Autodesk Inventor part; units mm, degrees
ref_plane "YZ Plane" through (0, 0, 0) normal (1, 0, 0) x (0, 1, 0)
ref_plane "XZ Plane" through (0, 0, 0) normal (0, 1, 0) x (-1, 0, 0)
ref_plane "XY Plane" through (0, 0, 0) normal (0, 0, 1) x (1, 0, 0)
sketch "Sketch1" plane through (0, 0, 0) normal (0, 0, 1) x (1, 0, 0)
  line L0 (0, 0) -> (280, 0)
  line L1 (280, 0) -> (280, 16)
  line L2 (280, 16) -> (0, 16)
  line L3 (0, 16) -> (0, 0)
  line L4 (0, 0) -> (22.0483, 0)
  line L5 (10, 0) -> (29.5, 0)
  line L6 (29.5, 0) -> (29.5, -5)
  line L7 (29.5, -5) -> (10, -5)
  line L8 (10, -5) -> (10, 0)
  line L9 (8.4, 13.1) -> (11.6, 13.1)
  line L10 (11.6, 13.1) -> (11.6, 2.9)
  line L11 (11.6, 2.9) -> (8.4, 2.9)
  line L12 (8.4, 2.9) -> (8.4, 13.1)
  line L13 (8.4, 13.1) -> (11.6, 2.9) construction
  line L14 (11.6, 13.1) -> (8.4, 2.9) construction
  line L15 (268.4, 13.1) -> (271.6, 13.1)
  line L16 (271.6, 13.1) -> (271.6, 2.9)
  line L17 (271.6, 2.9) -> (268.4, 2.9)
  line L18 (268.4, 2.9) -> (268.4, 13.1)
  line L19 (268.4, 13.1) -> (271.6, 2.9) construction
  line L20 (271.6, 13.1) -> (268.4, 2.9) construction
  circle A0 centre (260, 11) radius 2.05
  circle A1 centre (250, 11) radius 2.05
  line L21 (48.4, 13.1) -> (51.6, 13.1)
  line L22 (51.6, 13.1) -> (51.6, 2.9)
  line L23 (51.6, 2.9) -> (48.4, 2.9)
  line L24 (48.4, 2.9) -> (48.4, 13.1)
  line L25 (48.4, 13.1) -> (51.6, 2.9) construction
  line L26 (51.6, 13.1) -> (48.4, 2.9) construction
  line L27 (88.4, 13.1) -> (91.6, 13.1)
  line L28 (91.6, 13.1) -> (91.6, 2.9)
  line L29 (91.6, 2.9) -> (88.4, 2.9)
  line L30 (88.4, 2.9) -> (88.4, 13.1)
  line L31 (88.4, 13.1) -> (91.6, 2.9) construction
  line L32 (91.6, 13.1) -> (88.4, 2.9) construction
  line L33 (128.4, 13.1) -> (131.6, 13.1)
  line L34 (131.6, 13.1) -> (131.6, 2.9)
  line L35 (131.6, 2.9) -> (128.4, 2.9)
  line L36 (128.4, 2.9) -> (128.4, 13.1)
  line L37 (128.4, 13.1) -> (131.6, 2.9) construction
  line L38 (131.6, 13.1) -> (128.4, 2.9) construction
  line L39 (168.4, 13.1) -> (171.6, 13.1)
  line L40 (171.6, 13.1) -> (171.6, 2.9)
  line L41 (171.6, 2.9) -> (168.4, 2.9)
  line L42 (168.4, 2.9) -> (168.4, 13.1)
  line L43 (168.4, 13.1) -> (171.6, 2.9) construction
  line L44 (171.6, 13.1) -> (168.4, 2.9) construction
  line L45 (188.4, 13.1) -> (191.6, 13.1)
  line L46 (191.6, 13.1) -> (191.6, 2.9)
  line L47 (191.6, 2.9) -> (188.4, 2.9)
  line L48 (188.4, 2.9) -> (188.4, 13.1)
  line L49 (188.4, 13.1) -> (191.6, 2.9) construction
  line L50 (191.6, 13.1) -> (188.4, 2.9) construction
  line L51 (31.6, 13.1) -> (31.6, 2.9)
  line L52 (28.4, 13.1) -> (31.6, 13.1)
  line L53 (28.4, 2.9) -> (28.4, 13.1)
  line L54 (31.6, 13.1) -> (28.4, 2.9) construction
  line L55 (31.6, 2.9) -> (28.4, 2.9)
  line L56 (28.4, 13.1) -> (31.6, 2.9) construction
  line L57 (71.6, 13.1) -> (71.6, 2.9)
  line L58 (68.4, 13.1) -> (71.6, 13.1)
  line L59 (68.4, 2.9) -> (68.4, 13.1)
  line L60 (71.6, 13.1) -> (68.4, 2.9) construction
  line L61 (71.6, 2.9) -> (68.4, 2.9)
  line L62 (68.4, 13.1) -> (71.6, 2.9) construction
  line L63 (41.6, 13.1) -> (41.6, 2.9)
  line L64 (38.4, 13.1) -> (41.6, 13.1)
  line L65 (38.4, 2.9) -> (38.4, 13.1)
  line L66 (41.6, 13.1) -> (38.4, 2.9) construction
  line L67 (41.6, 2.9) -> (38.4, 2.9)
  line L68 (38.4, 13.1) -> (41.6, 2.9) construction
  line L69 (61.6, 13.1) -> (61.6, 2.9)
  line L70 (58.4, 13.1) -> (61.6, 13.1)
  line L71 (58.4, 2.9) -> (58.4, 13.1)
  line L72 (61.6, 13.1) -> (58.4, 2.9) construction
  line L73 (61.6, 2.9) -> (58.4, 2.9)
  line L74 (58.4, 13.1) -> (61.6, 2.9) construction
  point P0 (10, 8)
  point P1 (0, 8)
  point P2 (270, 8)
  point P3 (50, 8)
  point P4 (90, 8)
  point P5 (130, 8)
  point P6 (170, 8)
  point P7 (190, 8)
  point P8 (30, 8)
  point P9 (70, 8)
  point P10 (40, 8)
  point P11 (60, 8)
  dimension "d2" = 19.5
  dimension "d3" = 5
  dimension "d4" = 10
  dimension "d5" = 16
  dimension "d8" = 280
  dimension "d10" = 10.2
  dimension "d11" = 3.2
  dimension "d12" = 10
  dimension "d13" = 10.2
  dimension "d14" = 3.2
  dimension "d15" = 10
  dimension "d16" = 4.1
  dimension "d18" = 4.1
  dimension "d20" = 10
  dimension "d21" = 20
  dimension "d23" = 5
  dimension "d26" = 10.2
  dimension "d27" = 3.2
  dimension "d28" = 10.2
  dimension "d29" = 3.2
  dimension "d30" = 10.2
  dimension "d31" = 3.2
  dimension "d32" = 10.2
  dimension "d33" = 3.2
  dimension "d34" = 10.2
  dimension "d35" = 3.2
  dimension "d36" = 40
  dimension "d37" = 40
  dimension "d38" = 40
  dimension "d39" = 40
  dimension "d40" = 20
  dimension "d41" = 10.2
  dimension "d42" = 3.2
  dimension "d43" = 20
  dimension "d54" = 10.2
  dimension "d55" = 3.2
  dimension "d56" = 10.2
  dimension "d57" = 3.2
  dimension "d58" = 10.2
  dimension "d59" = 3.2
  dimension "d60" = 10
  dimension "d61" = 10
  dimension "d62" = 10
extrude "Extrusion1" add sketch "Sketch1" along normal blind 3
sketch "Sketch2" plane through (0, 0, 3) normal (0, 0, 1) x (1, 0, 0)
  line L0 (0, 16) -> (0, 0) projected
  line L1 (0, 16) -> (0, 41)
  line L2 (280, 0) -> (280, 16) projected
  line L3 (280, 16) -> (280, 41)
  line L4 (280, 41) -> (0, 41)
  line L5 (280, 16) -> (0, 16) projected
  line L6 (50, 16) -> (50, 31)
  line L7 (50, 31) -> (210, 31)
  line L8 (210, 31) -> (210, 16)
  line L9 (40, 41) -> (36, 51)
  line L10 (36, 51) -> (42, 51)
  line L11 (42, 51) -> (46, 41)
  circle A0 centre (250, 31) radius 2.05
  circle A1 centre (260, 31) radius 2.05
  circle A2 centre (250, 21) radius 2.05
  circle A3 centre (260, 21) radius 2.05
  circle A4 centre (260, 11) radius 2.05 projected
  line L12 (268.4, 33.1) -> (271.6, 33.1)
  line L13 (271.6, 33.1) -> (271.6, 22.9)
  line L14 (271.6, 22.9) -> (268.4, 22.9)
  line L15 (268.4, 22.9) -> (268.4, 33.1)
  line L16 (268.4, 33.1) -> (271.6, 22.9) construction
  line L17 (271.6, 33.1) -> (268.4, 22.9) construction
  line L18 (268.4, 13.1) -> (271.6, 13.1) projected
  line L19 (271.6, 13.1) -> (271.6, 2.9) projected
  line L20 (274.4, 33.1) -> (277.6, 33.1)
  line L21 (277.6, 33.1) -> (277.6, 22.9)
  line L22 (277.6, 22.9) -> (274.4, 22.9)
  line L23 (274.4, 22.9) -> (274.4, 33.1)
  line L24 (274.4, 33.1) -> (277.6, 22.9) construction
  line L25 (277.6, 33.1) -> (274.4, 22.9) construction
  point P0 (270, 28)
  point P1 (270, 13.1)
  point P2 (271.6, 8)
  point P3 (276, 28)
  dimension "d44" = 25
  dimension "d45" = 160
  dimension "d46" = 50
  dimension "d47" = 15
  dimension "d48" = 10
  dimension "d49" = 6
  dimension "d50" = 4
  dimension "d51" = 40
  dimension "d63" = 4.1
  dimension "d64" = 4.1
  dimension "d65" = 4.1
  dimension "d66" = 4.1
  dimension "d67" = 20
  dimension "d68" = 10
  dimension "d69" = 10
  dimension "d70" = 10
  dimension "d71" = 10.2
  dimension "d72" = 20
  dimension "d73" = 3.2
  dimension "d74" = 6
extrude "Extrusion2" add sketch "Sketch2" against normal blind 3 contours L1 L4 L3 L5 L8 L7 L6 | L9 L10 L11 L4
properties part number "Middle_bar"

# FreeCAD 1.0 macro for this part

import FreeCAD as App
import Part
import Sketcher

V = App.Vector

doc = App.newDocument("Part")
body = doc.addObject("PartDesign::Body", "Body")

# Sketch on XY plane
sketch1 = body.newObject("Sketcher::SketchObject", "Sketch")
sketch1.AttachmentSupport = (doc.getObject("XY_Plane"), [""])
sketch1.MapMode = "FlatFace"
sketch1.addGeometry([
    Part.LineSegment(V(0, 16, 0), V(0, 0, 0)),  # 0
    Part.LineSegment(V(0, 0, 0), V(10, 0, 0)),  # 1
    Part.LineSegment(V(10, 0, 0), V(10, -5, 0)),  # 2
    Part.LineSegment(V(10, -5, 0), V(29.5, -5, 0)),  # 3
    Part.LineSegment(V(29.5, -5, 0), V(29.5, 0, 0)),  # 4
    Part.LineSegment(V(29.5, 0, 0), V(280, 0, 0)),  # 5
    Part.LineSegment(V(280, 0, 0), V(280, 16, 0)),  # 6
    Part.LineSegment(V(280, 16, 0), V(0, 16, 0)),  # 7
    Part.LineSegment(V(8.4, 2.9, 0), V(8.4, 13.1, 0)),  # 8
    Part.LineSegment(V(8.4, 13.1, 0), V(11.6, 13.1, 0)),  # 9
    Part.LineSegment(V(11.6, 13.1, 0), V(11.6, 2.9, 0)),  # 10
    Part.LineSegment(V(11.6, 2.9, 0), V(8.4, 2.9, 0)),  # 11
    Part.LineSegment(V(28.4, 13.1, 0), V(31.6, 13.1, 0)),  # 12
    Part.LineSegment(V(31.6, 13.1, 0), V(31.6, 2.9, 0)),  # 13
    Part.LineSegment(V(31.6, 2.9, 0), V(28.4, 2.9, 0)),  # 14
    Part.LineSegment(V(28.4, 2.9, 0), V(28.4, 13.1, 0)),  # 15
    Part.LineSegment(V(38.4, 13.1, 0), V(41.6, 13.1, 0)),  # 16
    Part.LineSegment(V(41.6, 13.1, 0), V(41.6, 2.9, 0)),  # 17
    Part.LineSegment(V(41.6, 2.9, 0), V(38.4, 2.9, 0)),  # 18
    Part.LineSegment(V(38.4, 2.9, 0), V(38.4, 13.1, 0)),  # 19
    Part.LineSegment(V(48.4, 2.9, 0), V(48.4, 13.1, 0)),  # 20
    Part.LineSegment(V(48.4, 13.1, 0), V(51.6, 13.1, 0)),  # 21
    Part.LineSegment(V(51.6, 13.1, 0), V(51.6, 2.9, 0)),  # 22
    Part.LineSegment(V(51.6, 2.9, 0), V(48.4, 2.9, 0)),  # 23
    Part.LineSegment(V(58.4, 13.1, 0), V(61.6, 13.1, 0)),  # 24
    Part.LineSegment(V(61.6, 13.1, 0), V(61.6, 2.9, 0)),  # 25
    Part.LineSegment(V(61.6, 2.9, 0), V(58.4, 2.9, 0)),  # 26
    Part.LineSegment(V(58.4, 2.9, 0), V(58.4, 13.1, 0)),  # 27
    Part.LineSegment(V(68.4, 13.1, 0), V(71.6, 13.1, 0)),  # 28
    Part.LineSegment(V(71.6, 13.1, 0), V(71.6, 2.9, 0)),  # 29
    Part.LineSegment(V(71.6, 2.9, 0), V(68.4, 2.9, 0)),  # 30
    Part.LineSegment(V(68.4, 2.9, 0), V(68.4, 13.1, 0)),  # 31
    Part.LineSegment(V(88.4, 2.9, 0), V(88.4, 13.1, 0)),  # 32
    Part.LineSegment(V(88.4, 13.1, 0), V(91.6, 13.1, 0)),  # 33
    Part.LineSegment(V(91.6, 13.1, 0), V(91.6, 2.9, 0)),  # 34
    Part.LineSegment(V(91.6, 2.9, 0), V(88.4, 2.9, 0)),  # 35
    Part.LineSegment(V(128.4, 2.9, 0), V(128.4, 13.1, 0)),  # 36
    Part.LineSegment(V(128.4, 13.1, 0), V(131.6, 13.1, 0)),  # 37
    Part.LineSegment(V(131.6, 13.1, 0), V(131.6, 2.9, 0)),  # 38
    Part.LineSegment(V(131.6, 2.9, 0), V(128.4, 2.9, 0)),  # 39
    Part.LineSegment(V(168.4, 2.9, 0), V(168.4, 13.1, 0)),  # 40
    Part.LineSegment(V(168.4, 13.1, 0), V(171.6, 13.1, 0)),  # 41
    Part.LineSegment(V(171.6, 13.1, 0), V(171.6, 2.9, 0)),  # 42
    Part.LineSegment(V(171.6, 2.9, 0), V(168.4, 2.9, 0)),  # 43
    Part.LineSegment(V(188.4, 2.9, 0), V(188.4, 13.1, 0)),  # 44
    Part.LineSegment(V(188.4, 13.1, 0), V(191.6, 13.1, 0)),  # 45
    Part.LineSegment(V(191.6, 13.1, 0), V(191.6, 2.9, 0)),  # 46
    Part.LineSegment(V(191.6, 2.9, 0), V(188.4, 2.9, 0)),  # 47
    Part.LineSegment(V(268.4, 2.9, 0), V(268.4, 13.1, 0)),  # 48
    Part.LineSegment(V(268.4, 13.1, 0), V(271.6, 13.1, 0)),  # 49
    Part.LineSegment(V(271.6, 13.1, 0), V(271.6, 2.9, 0)),  # 50
    Part.LineSegment(V(271.6, 2.9, 0), V(268.4, 2.9, 0)),  # 51
    Part.Circle(V(250, 11, 0), V(0, 0, 1), 2),  # 52
    Part.Circle(V(260, 11, 0), V(0, 0, 1), 2),  # 53
], False)
sketch1.addConstraint([
    Sketcher.Constraint("Coincident", 0, 2, 1, 1),
    Sketcher.Constraint("Coincident", 1, 2, 2, 1),
    Sketcher.Constraint("Coincident", 2, 2, 3, 1),
    Sketcher.Constraint("Coincident", 3, 2, 4, 1),
    Sketcher.Constraint("Coincident", 4, 2, 5, 1),
    Sketcher.Constraint("Coincident", 5, 2, 6, 1),
    Sketcher.Constraint("Coincident", 6, 2, 7, 1),
    Sketcher.Constraint("Coincident", 7, 2, 0, 1),
    Sketcher.Constraint("Coincident", 8, 2, 9, 1),
    Sketcher.Constraint("Coincident", 9, 2, 10, 1),
    Sketcher.Constraint("Coincident", 10, 2, 11, 1),
    Sketcher.Constraint("Coincident", 11, 2, 8, 1),
    Sketcher.Constraint("Coincident", 12, 2, 13, 1),
    Sketcher.Constraint("Coincident", 13, 2, 14, 1),
    Sketcher.Constraint("Coincident", 14, 2, 15, 1),
    Sketcher.Constraint("Coincident", 15, 2, 12, 1),
    Sketcher.Constraint("Coincident", 16, 2, 17, 1),
    Sketcher.Constraint("Coincident", 17, 2, 18, 1),
    Sketcher.Constraint("Coincident", 18, 2, 19, 1),
    Sketcher.Constraint("Coincident", 19, 2, 16, 1),
    Sketcher.Constraint("Coincident", 20, 2, 21, 1),
    Sketcher.Constraint("Coincident", 21, 2, 22, 1),
    Sketcher.Constraint("Coincident", 22, 2, 23, 1),
    Sketcher.Constraint("Coincident", 23, 2, 20, 1),
    Sketcher.Constraint("Coincident", 24, 2, 25, 1),
    Sketcher.Constraint("Coincident", 25, 2, 26, 1),
    Sketcher.Constraint("Coincident", 26, 2, 27, 1),
    Sketcher.Constraint("Coincident", 27, 2, 24, 1),
    Sketcher.Constraint("Coincident", 28, 2, 29, 1),
    Sketcher.Constraint("Coincident", 29, 2, 30, 1),
    Sketcher.Constraint("Coincident", 30, 2, 31, 1),
    Sketcher.Constraint("Coincident", 31, 2, 28, 1),
    Sketcher.Constraint("Coincident", 32, 2, 33, 1),
    Sketcher.Constraint("Coincident", 33, 2, 34, 1),
    Sketcher.Constraint("Coincident", 34, 2, 35, 1),
    Sketcher.Constraint("Coincident", 35, 2, 32, 1),
    Sketcher.Constraint("Coincident", 36, 2, 37, 1),
    Sketcher.Constraint("Coincident", 37, 2, 38, 1),
    Sketcher.Constraint("Coincident", 38, 2, 39, 1),
    Sketcher.Constraint("Coincident", 39, 2, 36, 1),
    Sketcher.Constraint("Coincident", 40, 2, 41, 1),
    Sketcher.Constraint("Coincident", 41, 2, 42, 1),
    Sketcher.Constraint("Coincident", 42, 2, 43, 1),
    Sketcher.Constraint("Coincident", 43, 2, 40, 1),
    Sketcher.Constraint("Coincident", 44, 2, 45, 1),
    Sketcher.Constraint("Coincident", 45, 2, 46, 1),
    Sketcher.Constraint("Coincident", 46, 2, 47, 1),
    Sketcher.Constraint("Coincident", 47, 2, 44, 1),
    Sketcher.Constraint("Coincident", 48, 2, 49, 1),
    Sketcher.Constraint("Coincident", 49, 2, 50, 1),
    Sketcher.Constraint("Coincident", 50, 2, 51, 1),
    Sketcher.Constraint("Coincident", 51, 2, 48, 1),
    Sketcher.Constraint("Vertical", 0),
    Sketcher.Constraint("Horizontal", 1),
    Sketcher.Constraint("Vertical", 2),
    Sketcher.Constraint("Horizontal", 3),
    Sketcher.Constraint("Vertical", 4),
    Sketcher.Constraint("Horizontal", 5),
    Sketcher.Constraint("Vertical", 6),
    Sketcher.Constraint("Horizontal", 7),
    Sketcher.Constraint("Vertical", 8),
    Sketcher.Constraint("Horizontal", 9),
    Sketcher.Constraint("Vertical", 10),
    Sketcher.Constraint("Horizontal", 11),
    Sketcher.Constraint("Horizontal", 12),
    Sketcher.Constraint("Vertical", 13),
    Sketcher.Constraint("Horizontal", 14),
    Sketcher.Constraint("Vertical", 15),
    Sketcher.Constraint("Horizontal", 16),
    Sketcher.Constraint("Vertical", 17),
    Sketcher.Constraint("Horizontal", 18),
    Sketcher.Constraint("Vertical", 19),
    Sketcher.Constraint("Vertical", 20),
    Sketcher.Constraint("Horizontal", 21),
    Sketcher.Constraint("Vertical", 22),
    Sketcher.Constraint("Horizontal", 23),
    Sketcher.Constraint("Horizontal", 24),
    Sketcher.Constraint("Vertical", 25),
    Sketcher.Constraint("Horizontal", 26),
    Sketcher.Constraint("Vertical", 27),
    Sketcher.Constraint("Horizontal", 28),
    Sketcher.Constraint("Vertical", 29),
    Sketcher.Constraint("Horizontal", 30),
    Sketcher.Constraint("Vertical", 31),
    Sketcher.Constraint("Vertical", 32),
    Sketcher.Constraint("Horizontal", 33),
    Sketcher.Constraint("Vertical", 34),
    Sketcher.Constraint("Horizontal", 35),
    Sketcher.Constraint("Vertical", 36),
    Sketcher.Constraint("Horizontal", 37),
    Sketcher.Constraint("Vertical", 38),
    Sketcher.Constraint("Horizontal", 39),
    Sketcher.Constraint("Vertical", 40),
    Sketcher.Constraint("Horizontal", 41),
    Sketcher.Constraint("Vertical", 42),
    Sketcher.Constraint("Horizontal", 43),
    Sketcher.Constraint("Vertical", 44),
    Sketcher.Constraint("Horizontal", 45),
    Sketcher.Constraint("Vertical", 46),
    Sketcher.Constraint("Horizontal", 47),
    Sketcher.Constraint("Vertical", 48),
    Sketcher.Constraint("Horizontal", 49),
    Sketcher.Constraint("Vertical", 50),
    Sketcher.Constraint("Horizontal", 51),
    Sketcher.Constraint("Coincident", 0, 2, -1, 1),
    Sketcher.Constraint("Equal", 52, 53),
    Sketcher.Constraint("PointOnObject", 4, 2, -1),
    Sketcher.Constraint("Horizontal", 52, 3, 53, 3),
    Sketcher.Constraint("Horizontal", 9, 2, 12, 2),
    Sketcher.Constraint("Horizontal", 11, 2, 13, 2),
    Sketcher.Constraint("Horizontal", 15, 2, 16, 2),
    Sketcher.Constraint("Horizontal", 14, 2, 17, 2),
    Sketcher.Constraint("Horizontal", 19, 2, 20, 2),
    Sketcher.Constraint("Horizontal", 18, 2, 22, 2),
    Sketcher.Constraint("Horizontal", 21, 2, 24, 2),
    Sketcher.Constraint("Horizontal", 23, 2, 25, 2),
    Sketcher.Constraint("Horizontal", 27, 2, 28, 2),
    Sketcher.Constraint("Horizontal", 26, 2, 29, 2),
    Sketcher.Constraint("Horizontal", 31, 2, 32, 2),
    Sketcher.Constraint("Horizontal", 30, 2, 34, 2),
    Sketcher.Constraint("Horizontal", 33, 2, 36, 2),
    Sketcher.Constraint("Horizontal", 35, 2, 38, 2),
    Sketcher.Constraint("Horizontal", 37, 2, 40, 2),
    Sketcher.Constraint("Horizontal", 39, 2, 42, 2),
    Sketcher.Constraint("Horizontal", 41, 2, 44, 2),
    Sketcher.Constraint("Horizontal", 43, 2, 46, 2),
    Sketcher.Constraint("Horizontal", 45, 2, 48, 2),
    Sketcher.Constraint("Horizontal", 47, 2, 50, 2),
    Sketcher.Constraint("Equal", 11, 12),
    Sketcher.Constraint("Equal", 14, 16),
    Sketcher.Constraint("Equal", 18, 21),
    Sketcher.Constraint("Equal", 23, 24),
    Sketcher.Constraint("Equal", 26, 28),
    Sketcher.Constraint("Equal", 30, 33),
    Sketcher.Constraint("Equal", 35, 37),
    Sketcher.Constraint("Equal", 39, 41),
    Sketcher.Constraint("Equal", 43, 45),
    Sketcher.Constraint("Equal", 47, 49),
    Sketcher.Constraint("Diameter", 52, 4.1),
    Sketcher.Constraint("DistanceX", 1, 1, 1, 2, 10.0),
    Sketcher.Constraint("DistanceX", 7, 2, 7, 1, 280.0),
    Sketcher.Constraint("DistanceY", 0, 2, 0, 1, 16.0),
    Sketcher.Constraint("DistanceY", 2, 2, 2, 1, 5.0),
    Sketcher.Constraint("DistanceX", 3, 1, 3, 2, 19.5),
    Sketcher.Constraint("DistanceX", 9, 1, 9, 2, 3.2),
    Sketcher.Constraint("DistanceY", 8, 1, 8, 2, 10.2),
    Sketcher.Constraint("DistanceX", 52, 3, 53, 3, 10.0),
    Sketcher.Constraint("DistanceY", 2, 2, 52, 3, 16.0),
    Sketcher.Constraint("DistanceX", 53, 3, 5, 2, 20.0),
    Sketcher.Constraint("DistanceX", 9, 2, 12, 2, 20.0),
    Sketcher.Constraint("DistanceX", 12, 2, 16, 2, 10.0),
    Sketcher.Constraint("DistanceX", 19, 2, 20, 2, 10.0),
    Sketcher.Constraint("DistanceX", 21, 2, 24, 2, 10.0),
    Sketcher.Constraint("DistanceX", 24, 2, 28, 2, 10.0),
    Sketcher.Constraint("DistanceX", 31, 2, 32, 2, 20.0),
    Sketcher.Constraint("DistanceX", 32, 2, 36, 2, 40.0),
    Sketcher.Constraint("DistanceX", 36, 2, 40, 2, 40.0),
    Sketcher.Constraint("DistanceX", 40, 2, 44, 2, 20.0),
    Sketcher.Constraint("DistanceX", -1, 1, 8, 2, 8.4),
    Sketcher.Constraint("DistanceY", -1, 1, 8, 2, 13.1),
    Sketcher.Constraint("DistanceX", -1, 1, 48, 2, 268.4),
])
pad1 = body.newObject("PartDesign::Pad", "Pad")
pad1.Profile = sketch1
pad1.Length = 3

# Sketch on XY plane
sketch2 = body.newObject("Sketcher::SketchObject", "Sketch001")
sketch2.AttachmentSupport = (doc.getObject("XY_Plane"), [""])
sketch2.MapMode = "FlatFace"
sketch2.AttachmentOffset = App.Placement(V(0, 0, 3), App.Rotation())
sketch2.addGeometry([
    Part.LineSegment(V(0, 41, 0), V(0, 16, 0)),  # 0
    Part.LineSegment(V(0, 16, 0), V(50, 16, 0)),  # 1
    Part.LineSegment(V(50, 16, 0), V(50, 31, 0)),  # 2
    Part.LineSegment(V(50, 31, 0), V(210, 31, 0)),  # 3
    Part.LineSegment(V(210, 31, 0), V(210, 16, 0)),  # 4
    Part.LineSegment(V(210, 16, 0), V(280, 16, 0)),  # 5
    Part.LineSegment(V(280, 16, 0), V(280, 41, 0)),  # 6
    Part.LineSegment(V(280, 41, 0), V(46, 41, 0)),  # 7
    Part.LineSegment(V(46, 41, 0), V(42, 51, 0)),  # 8
    Part.LineSegment(V(42, 51, 0), V(36, 51, 0)),  # 9
    Part.LineSegment(V(36, 51, 0), V(40, 41, 0)),  # 10
    Part.LineSegment(V(40, 41, 0), V(0, 41, 0)),  # 11
    Part.Circle(V(250, 21, 0), V(0, 0, 1), 2),  # 12
    Part.Circle(V(260, 21, 0), V(0, 0, 1), 2),  # 13
    Part.LineSegment(V(268.4, 22.9, 0), V(268.4, 33.1, 0)),  # 14
    Part.LineSegment(V(268.4, 33.1, 0), V(271.6, 33.1, 0)),  # 15
    Part.LineSegment(V(271.6, 33.1, 0), V(271.6, 22.9, 0)),  # 16
    Part.LineSegment(V(271.6, 22.9, 0), V(268.4, 22.9, 0)),  # 17
    Part.LineSegment(V(274.4, 22.9, 0), V(274.4, 33.1, 0)),  # 18
    Part.LineSegment(V(274.4, 33.1, 0), V(277.6, 33.1, 0)),  # 19
    Part.LineSegment(V(277.6, 33.1, 0), V(277.6, 22.9, 0)),  # 20
    Part.LineSegment(V(277.6, 22.9, 0), V(274.4, 22.9, 0)),  # 21
    Part.Circle(V(250, 31, 0), V(0, 0, 1), 2),  # 22
    Part.Circle(V(260, 31, 0), V(0, 0, 1), 2),  # 23
], False)
sketch2.addConstraint([
    Sketcher.Constraint("Coincident", 0, 2, 1, 1),
    Sketcher.Constraint("Coincident", 1, 2, 2, 1),
    Sketcher.Constraint("Coincident", 2, 2, 3, 1),
    Sketcher.Constraint("Coincident", 3, 2, 4, 1),
    Sketcher.Constraint("Coincident", 4, 2, 5, 1),
    Sketcher.Constraint("Coincident", 5, 2, 6, 1),
    Sketcher.Constraint("Coincident", 6, 2, 7, 1),
    Sketcher.Constraint("Coincident", 7, 2, 8, 1),
    Sketcher.Constraint("Coincident", 8, 2, 9, 1),
    Sketcher.Constraint("Coincident", 9, 2, 10, 1),
    Sketcher.Constraint("Coincident", 10, 2, 11, 1),
    Sketcher.Constraint("Coincident", 11, 2, 0, 1),
    Sketcher.Constraint("Coincident", 14, 2, 15, 1),
    Sketcher.Constraint("Coincident", 15, 2, 16, 1),
    Sketcher.Constraint("Coincident", 16, 2, 17, 1),
    Sketcher.Constraint("Coincident", 17, 2, 14, 1),
    Sketcher.Constraint("Coincident", 18, 2, 19, 1),
    Sketcher.Constraint("Coincident", 19, 2, 20, 1),
    Sketcher.Constraint("Coincident", 20, 2, 21, 1),
    Sketcher.Constraint("Coincident", 21, 2, 18, 1),
    Sketcher.Constraint("Vertical", 0),
    Sketcher.Constraint("Horizontal", 1),
    Sketcher.Constraint("Vertical", 2),
    Sketcher.Constraint("Horizontal", 3),
    Sketcher.Constraint("Vertical", 4),
    Sketcher.Constraint("Horizontal", 5),
    Sketcher.Constraint("Vertical", 6),
    Sketcher.Constraint("Horizontal", 7),
    Sketcher.Constraint("Horizontal", 9),
    Sketcher.Constraint("Horizontal", 11),
    Sketcher.Constraint("Vertical", 14),
    Sketcher.Constraint("Horizontal", 15),
    Sketcher.Constraint("Vertical", 16),
    Sketcher.Constraint("Horizontal", 17),
    Sketcher.Constraint("Vertical", 18),
    Sketcher.Constraint("Horizontal", 19),
    Sketcher.Constraint("Vertical", 20),
    Sketcher.Constraint("Horizontal", 21),
    Sketcher.Constraint("Equal", 12, 13),
    Sketcher.Constraint("Equal", 13, 22),
    Sketcher.Constraint("Equal", 22, 23),
    Sketcher.Constraint("PointOnObject", 0, 2, -2),
    Sketcher.Constraint("Parallel", 8, 10),
    Sketcher.Constraint("Horizontal", 12, 3, 13, 3),
    Sketcher.Constraint("Horizontal", 22, 3, 23, 3),
    Sketcher.Constraint("Horizontal", 23, 3, 2, 2),
    Sketcher.Constraint("Horizontal", 1, 2, 4, 2),
    Sketcher.Constraint("Horizontal", 7, 2, 10, 2),
    Sketcher.Constraint("Horizontal", 15, 2, 18, 2),
    Sketcher.Constraint("Horizontal", 17, 2, 20, 2),
    Sketcher.Constraint("Vertical", 12, 3, 22, 3),
    Sketcher.Constraint("Vertical", 13, 3, 23, 3),
    Sketcher.Constraint("Equal", 17, 19),
    Sketcher.Constraint("Diameter", 12, 4.1),
    Sketcher.Constraint("DistanceX", 1, 1, 1, 2, 50.0),
    Sketcher.Constraint("DistanceX", 3, 1, 3, 2, 160.0),
    Sketcher.Constraint("DistanceX", 9, 2, 9, 1, 6.0),
    Sketcher.Constraint("DistanceX", 11, 2, 11, 1, 40.0),
    Sketcher.Constraint("DistanceY", 0, 2, 0, 1, 25.0),
    Sketcher.Constraint("DistanceY", 2, 1, 2, 2, 15.0),
    Sketcher.Constraint("DistanceX", 15, 1, 15, 2, 3.2),
    Sketcher.Constraint("DistanceY", 14, 1, 14, 2, 10.2),
    Sketcher.Constraint("DistanceX", 12, 3, 13, 3, 10.0),
    Sketcher.Constraint("DistanceY", 12, 3, 22, 3, 10.0),
    Sketcher.Constraint("DistanceX", 3, 2, 22, 3, 40.0),
    Sketcher.Constraint("DistanceX", 13, 3, 5, 2, 20.0),
    Sketcher.Constraint("DistanceX", 8, 2, 7, 2, 4.0),
    Sketcher.Constraint("DistanceY", 7, 2, 8, 2, 10.0),
    Sketcher.Constraint("DistanceX", 14, 2, 18, 2, 6.0),
    Sketcher.Constraint("DistanceY", -1, 1, 12, 3, 21.0),
    Sketcher.Constraint("DistanceX", -1, 1, 14, 2, 268.4),
    Sketcher.Constraint("DistanceY", -1, 1, 14, 2, 33.1),
])
pad2 = body.newObject("PartDesign::Pad", "Pad001")
pad2.Profile = sketch2
pad2.Length = 3
pad2.Reversed = True

doc.recompute()
